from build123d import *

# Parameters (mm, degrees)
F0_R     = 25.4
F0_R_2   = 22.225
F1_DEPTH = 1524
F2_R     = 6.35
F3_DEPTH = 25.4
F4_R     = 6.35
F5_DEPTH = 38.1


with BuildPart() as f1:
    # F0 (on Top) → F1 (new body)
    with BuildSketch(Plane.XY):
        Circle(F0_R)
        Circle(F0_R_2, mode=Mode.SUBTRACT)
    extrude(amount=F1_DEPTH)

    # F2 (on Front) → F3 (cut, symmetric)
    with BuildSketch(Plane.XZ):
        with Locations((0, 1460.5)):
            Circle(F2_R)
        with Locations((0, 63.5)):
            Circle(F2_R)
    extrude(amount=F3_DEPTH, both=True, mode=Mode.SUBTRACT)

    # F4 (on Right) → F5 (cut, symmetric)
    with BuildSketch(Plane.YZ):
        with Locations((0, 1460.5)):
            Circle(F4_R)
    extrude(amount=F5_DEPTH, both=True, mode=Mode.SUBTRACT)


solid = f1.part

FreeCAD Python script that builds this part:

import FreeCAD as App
import Part
import Sketcher
from FreeCAD import Vector
Q = App.Units.Quantity

doc = App.newDocument("Part")
params = doc.addObject("Spreadsheet::Sheet", "Params")
for row, (alias, value) in enumerate([
    ("sketch1_diameter", "2 in"),
    ("sketch1_diameter2", "1.75 in"),
    ("pad1_length", "60 in"),
    ("sketch2_diameter", "0.5 in"),
    ("pocket1_length", "2 in"),
    ("sketch3_diameter", "0.5 in"),
    ("pocket2_length", "3 in"),
], start=1):
    params.set(f"A{row}", alias)
    params.set(f"B{row}", "=" + value)
    params.setAlias(f"B{row}", alias)

body = doc.addObject("PartDesign::Body", "Body")

# Sketch on XY plane
sketch1 = body.newObject("Sketcher::SketchObject", "Sketch")
sketch1.AttachmentSupport = (doc.getObject("XY_Plane"), [""])
sketch1.MapMode = "FlatFace"
sketch1.addGeometry(Part.Circle(Vector(0, 0, 0), Vector(0, 0, 1), 25.4), False)
sketch1.addGeometry(Part.Circle(Vector(0, 0, 0), Vector(0, 0, 1), 22.225), False)
sketch1.addConstraint(Sketcher.Constraint("Coincident", 0, 3, -1, 1))
sketch1.addConstraint(Sketcher.Constraint("Coincident", 1, 3, -1, 1))
sketch1.addConstraint(Sketcher.Constraint("Diameter", 0, Q("2 in")))
sketch1.addConstraint(Sketcher.Constraint("Diameter", 1, Q("1.75 in")))
sketch1.setExpression("Constraints[2]", "Params.sketch1_diameter")
sketch1.setExpression("Constraints[3]", "Params.sketch1_diameter2")
pad1 = body.newObject("PartDesign::Pad", "Pad")
pad1.Profile = sketch1
pad1.setExpression("Length", "Params.pad1_length")

# Sketch on XZ plane
sketch2 = body.newObject("Sketcher::SketchObject", "Sketch001")
sketch2.AttachmentSupport = (doc.getObject("XZ_Plane"), [""])
sketch2.MapMode = "FlatFace"
sketch2.addGeometry(Part.Circle(Vector(0, 1460.5, 0), Vector(0, 0, 1), 6.35), False)
sketch2.addGeometry(Part.Circle(Vector(0, 63.5, 0), Vector(0, 0, 1), 6.35), False)
sketch2.addConstraint(Sketcher.Constraint("Equal", 0, 1))
sketch2.addConstraint(Sketcher.Constraint("PointOnObject", 0, 3, -2))
sketch2.addConstraint(Sketcher.Constraint("PointOnObject", 1, 3, -2))
sketch2.addConstraint(Sketcher.Constraint("Diameter", 0, Q("0.5 in")))
sketch2.addConstraint(Sketcher.Constraint("DistanceY", 1, 3, 0, 3, Q("55 in")))
sketch2.addConstraint(Sketcher.Constraint("DistanceY", -1, 1, 0, 3, Q("57.5 in")))
sketch2.setExpression("Constraints[3]", "Params.sketch2_diameter")
pocket1 = body.newObject("PartDesign::Pocket", "Pocket")
pocket1.Profile = sketch2
pocket1.setExpression("Length", "Params.pocket1_length")
pocket1.Midplane = True

# Sketch on YZ plane
sketch3 = body.newObject("Sketcher::SketchObject", "Sketch002")
sketch3.AttachmentSupport = (doc.getObject("YZ_Plane"), [""])
sketch3.MapMode = "FlatFace"
sketch3.addGeometry(Part.Circle(Vector(0, 1460.5, 0), Vector(0, 0, 1), 6.35), False)
sketch3.addConstraint(Sketcher.Constraint("PointOnObject", 0, 3, -2))
sketch3.addConstraint(Sketcher.Constraint("Diameter", 0, Q("0.5 in")))
sketch3.addConstraint(Sketcher.Constraint("DistanceY", -1, 1, 0, 3, Q("57.5 in")))
sketch3.setExpression("Constraints[1]", "Params.sketch3_diameter")
pocket2 = body.newObject("PartDesign::Pocket", "Pocket001")
pocket2.Profile = sketch3
pocket2.setExpression("Length", "Params.pocket2_length")
pocket2.Midplane = True

doc.recompute()
